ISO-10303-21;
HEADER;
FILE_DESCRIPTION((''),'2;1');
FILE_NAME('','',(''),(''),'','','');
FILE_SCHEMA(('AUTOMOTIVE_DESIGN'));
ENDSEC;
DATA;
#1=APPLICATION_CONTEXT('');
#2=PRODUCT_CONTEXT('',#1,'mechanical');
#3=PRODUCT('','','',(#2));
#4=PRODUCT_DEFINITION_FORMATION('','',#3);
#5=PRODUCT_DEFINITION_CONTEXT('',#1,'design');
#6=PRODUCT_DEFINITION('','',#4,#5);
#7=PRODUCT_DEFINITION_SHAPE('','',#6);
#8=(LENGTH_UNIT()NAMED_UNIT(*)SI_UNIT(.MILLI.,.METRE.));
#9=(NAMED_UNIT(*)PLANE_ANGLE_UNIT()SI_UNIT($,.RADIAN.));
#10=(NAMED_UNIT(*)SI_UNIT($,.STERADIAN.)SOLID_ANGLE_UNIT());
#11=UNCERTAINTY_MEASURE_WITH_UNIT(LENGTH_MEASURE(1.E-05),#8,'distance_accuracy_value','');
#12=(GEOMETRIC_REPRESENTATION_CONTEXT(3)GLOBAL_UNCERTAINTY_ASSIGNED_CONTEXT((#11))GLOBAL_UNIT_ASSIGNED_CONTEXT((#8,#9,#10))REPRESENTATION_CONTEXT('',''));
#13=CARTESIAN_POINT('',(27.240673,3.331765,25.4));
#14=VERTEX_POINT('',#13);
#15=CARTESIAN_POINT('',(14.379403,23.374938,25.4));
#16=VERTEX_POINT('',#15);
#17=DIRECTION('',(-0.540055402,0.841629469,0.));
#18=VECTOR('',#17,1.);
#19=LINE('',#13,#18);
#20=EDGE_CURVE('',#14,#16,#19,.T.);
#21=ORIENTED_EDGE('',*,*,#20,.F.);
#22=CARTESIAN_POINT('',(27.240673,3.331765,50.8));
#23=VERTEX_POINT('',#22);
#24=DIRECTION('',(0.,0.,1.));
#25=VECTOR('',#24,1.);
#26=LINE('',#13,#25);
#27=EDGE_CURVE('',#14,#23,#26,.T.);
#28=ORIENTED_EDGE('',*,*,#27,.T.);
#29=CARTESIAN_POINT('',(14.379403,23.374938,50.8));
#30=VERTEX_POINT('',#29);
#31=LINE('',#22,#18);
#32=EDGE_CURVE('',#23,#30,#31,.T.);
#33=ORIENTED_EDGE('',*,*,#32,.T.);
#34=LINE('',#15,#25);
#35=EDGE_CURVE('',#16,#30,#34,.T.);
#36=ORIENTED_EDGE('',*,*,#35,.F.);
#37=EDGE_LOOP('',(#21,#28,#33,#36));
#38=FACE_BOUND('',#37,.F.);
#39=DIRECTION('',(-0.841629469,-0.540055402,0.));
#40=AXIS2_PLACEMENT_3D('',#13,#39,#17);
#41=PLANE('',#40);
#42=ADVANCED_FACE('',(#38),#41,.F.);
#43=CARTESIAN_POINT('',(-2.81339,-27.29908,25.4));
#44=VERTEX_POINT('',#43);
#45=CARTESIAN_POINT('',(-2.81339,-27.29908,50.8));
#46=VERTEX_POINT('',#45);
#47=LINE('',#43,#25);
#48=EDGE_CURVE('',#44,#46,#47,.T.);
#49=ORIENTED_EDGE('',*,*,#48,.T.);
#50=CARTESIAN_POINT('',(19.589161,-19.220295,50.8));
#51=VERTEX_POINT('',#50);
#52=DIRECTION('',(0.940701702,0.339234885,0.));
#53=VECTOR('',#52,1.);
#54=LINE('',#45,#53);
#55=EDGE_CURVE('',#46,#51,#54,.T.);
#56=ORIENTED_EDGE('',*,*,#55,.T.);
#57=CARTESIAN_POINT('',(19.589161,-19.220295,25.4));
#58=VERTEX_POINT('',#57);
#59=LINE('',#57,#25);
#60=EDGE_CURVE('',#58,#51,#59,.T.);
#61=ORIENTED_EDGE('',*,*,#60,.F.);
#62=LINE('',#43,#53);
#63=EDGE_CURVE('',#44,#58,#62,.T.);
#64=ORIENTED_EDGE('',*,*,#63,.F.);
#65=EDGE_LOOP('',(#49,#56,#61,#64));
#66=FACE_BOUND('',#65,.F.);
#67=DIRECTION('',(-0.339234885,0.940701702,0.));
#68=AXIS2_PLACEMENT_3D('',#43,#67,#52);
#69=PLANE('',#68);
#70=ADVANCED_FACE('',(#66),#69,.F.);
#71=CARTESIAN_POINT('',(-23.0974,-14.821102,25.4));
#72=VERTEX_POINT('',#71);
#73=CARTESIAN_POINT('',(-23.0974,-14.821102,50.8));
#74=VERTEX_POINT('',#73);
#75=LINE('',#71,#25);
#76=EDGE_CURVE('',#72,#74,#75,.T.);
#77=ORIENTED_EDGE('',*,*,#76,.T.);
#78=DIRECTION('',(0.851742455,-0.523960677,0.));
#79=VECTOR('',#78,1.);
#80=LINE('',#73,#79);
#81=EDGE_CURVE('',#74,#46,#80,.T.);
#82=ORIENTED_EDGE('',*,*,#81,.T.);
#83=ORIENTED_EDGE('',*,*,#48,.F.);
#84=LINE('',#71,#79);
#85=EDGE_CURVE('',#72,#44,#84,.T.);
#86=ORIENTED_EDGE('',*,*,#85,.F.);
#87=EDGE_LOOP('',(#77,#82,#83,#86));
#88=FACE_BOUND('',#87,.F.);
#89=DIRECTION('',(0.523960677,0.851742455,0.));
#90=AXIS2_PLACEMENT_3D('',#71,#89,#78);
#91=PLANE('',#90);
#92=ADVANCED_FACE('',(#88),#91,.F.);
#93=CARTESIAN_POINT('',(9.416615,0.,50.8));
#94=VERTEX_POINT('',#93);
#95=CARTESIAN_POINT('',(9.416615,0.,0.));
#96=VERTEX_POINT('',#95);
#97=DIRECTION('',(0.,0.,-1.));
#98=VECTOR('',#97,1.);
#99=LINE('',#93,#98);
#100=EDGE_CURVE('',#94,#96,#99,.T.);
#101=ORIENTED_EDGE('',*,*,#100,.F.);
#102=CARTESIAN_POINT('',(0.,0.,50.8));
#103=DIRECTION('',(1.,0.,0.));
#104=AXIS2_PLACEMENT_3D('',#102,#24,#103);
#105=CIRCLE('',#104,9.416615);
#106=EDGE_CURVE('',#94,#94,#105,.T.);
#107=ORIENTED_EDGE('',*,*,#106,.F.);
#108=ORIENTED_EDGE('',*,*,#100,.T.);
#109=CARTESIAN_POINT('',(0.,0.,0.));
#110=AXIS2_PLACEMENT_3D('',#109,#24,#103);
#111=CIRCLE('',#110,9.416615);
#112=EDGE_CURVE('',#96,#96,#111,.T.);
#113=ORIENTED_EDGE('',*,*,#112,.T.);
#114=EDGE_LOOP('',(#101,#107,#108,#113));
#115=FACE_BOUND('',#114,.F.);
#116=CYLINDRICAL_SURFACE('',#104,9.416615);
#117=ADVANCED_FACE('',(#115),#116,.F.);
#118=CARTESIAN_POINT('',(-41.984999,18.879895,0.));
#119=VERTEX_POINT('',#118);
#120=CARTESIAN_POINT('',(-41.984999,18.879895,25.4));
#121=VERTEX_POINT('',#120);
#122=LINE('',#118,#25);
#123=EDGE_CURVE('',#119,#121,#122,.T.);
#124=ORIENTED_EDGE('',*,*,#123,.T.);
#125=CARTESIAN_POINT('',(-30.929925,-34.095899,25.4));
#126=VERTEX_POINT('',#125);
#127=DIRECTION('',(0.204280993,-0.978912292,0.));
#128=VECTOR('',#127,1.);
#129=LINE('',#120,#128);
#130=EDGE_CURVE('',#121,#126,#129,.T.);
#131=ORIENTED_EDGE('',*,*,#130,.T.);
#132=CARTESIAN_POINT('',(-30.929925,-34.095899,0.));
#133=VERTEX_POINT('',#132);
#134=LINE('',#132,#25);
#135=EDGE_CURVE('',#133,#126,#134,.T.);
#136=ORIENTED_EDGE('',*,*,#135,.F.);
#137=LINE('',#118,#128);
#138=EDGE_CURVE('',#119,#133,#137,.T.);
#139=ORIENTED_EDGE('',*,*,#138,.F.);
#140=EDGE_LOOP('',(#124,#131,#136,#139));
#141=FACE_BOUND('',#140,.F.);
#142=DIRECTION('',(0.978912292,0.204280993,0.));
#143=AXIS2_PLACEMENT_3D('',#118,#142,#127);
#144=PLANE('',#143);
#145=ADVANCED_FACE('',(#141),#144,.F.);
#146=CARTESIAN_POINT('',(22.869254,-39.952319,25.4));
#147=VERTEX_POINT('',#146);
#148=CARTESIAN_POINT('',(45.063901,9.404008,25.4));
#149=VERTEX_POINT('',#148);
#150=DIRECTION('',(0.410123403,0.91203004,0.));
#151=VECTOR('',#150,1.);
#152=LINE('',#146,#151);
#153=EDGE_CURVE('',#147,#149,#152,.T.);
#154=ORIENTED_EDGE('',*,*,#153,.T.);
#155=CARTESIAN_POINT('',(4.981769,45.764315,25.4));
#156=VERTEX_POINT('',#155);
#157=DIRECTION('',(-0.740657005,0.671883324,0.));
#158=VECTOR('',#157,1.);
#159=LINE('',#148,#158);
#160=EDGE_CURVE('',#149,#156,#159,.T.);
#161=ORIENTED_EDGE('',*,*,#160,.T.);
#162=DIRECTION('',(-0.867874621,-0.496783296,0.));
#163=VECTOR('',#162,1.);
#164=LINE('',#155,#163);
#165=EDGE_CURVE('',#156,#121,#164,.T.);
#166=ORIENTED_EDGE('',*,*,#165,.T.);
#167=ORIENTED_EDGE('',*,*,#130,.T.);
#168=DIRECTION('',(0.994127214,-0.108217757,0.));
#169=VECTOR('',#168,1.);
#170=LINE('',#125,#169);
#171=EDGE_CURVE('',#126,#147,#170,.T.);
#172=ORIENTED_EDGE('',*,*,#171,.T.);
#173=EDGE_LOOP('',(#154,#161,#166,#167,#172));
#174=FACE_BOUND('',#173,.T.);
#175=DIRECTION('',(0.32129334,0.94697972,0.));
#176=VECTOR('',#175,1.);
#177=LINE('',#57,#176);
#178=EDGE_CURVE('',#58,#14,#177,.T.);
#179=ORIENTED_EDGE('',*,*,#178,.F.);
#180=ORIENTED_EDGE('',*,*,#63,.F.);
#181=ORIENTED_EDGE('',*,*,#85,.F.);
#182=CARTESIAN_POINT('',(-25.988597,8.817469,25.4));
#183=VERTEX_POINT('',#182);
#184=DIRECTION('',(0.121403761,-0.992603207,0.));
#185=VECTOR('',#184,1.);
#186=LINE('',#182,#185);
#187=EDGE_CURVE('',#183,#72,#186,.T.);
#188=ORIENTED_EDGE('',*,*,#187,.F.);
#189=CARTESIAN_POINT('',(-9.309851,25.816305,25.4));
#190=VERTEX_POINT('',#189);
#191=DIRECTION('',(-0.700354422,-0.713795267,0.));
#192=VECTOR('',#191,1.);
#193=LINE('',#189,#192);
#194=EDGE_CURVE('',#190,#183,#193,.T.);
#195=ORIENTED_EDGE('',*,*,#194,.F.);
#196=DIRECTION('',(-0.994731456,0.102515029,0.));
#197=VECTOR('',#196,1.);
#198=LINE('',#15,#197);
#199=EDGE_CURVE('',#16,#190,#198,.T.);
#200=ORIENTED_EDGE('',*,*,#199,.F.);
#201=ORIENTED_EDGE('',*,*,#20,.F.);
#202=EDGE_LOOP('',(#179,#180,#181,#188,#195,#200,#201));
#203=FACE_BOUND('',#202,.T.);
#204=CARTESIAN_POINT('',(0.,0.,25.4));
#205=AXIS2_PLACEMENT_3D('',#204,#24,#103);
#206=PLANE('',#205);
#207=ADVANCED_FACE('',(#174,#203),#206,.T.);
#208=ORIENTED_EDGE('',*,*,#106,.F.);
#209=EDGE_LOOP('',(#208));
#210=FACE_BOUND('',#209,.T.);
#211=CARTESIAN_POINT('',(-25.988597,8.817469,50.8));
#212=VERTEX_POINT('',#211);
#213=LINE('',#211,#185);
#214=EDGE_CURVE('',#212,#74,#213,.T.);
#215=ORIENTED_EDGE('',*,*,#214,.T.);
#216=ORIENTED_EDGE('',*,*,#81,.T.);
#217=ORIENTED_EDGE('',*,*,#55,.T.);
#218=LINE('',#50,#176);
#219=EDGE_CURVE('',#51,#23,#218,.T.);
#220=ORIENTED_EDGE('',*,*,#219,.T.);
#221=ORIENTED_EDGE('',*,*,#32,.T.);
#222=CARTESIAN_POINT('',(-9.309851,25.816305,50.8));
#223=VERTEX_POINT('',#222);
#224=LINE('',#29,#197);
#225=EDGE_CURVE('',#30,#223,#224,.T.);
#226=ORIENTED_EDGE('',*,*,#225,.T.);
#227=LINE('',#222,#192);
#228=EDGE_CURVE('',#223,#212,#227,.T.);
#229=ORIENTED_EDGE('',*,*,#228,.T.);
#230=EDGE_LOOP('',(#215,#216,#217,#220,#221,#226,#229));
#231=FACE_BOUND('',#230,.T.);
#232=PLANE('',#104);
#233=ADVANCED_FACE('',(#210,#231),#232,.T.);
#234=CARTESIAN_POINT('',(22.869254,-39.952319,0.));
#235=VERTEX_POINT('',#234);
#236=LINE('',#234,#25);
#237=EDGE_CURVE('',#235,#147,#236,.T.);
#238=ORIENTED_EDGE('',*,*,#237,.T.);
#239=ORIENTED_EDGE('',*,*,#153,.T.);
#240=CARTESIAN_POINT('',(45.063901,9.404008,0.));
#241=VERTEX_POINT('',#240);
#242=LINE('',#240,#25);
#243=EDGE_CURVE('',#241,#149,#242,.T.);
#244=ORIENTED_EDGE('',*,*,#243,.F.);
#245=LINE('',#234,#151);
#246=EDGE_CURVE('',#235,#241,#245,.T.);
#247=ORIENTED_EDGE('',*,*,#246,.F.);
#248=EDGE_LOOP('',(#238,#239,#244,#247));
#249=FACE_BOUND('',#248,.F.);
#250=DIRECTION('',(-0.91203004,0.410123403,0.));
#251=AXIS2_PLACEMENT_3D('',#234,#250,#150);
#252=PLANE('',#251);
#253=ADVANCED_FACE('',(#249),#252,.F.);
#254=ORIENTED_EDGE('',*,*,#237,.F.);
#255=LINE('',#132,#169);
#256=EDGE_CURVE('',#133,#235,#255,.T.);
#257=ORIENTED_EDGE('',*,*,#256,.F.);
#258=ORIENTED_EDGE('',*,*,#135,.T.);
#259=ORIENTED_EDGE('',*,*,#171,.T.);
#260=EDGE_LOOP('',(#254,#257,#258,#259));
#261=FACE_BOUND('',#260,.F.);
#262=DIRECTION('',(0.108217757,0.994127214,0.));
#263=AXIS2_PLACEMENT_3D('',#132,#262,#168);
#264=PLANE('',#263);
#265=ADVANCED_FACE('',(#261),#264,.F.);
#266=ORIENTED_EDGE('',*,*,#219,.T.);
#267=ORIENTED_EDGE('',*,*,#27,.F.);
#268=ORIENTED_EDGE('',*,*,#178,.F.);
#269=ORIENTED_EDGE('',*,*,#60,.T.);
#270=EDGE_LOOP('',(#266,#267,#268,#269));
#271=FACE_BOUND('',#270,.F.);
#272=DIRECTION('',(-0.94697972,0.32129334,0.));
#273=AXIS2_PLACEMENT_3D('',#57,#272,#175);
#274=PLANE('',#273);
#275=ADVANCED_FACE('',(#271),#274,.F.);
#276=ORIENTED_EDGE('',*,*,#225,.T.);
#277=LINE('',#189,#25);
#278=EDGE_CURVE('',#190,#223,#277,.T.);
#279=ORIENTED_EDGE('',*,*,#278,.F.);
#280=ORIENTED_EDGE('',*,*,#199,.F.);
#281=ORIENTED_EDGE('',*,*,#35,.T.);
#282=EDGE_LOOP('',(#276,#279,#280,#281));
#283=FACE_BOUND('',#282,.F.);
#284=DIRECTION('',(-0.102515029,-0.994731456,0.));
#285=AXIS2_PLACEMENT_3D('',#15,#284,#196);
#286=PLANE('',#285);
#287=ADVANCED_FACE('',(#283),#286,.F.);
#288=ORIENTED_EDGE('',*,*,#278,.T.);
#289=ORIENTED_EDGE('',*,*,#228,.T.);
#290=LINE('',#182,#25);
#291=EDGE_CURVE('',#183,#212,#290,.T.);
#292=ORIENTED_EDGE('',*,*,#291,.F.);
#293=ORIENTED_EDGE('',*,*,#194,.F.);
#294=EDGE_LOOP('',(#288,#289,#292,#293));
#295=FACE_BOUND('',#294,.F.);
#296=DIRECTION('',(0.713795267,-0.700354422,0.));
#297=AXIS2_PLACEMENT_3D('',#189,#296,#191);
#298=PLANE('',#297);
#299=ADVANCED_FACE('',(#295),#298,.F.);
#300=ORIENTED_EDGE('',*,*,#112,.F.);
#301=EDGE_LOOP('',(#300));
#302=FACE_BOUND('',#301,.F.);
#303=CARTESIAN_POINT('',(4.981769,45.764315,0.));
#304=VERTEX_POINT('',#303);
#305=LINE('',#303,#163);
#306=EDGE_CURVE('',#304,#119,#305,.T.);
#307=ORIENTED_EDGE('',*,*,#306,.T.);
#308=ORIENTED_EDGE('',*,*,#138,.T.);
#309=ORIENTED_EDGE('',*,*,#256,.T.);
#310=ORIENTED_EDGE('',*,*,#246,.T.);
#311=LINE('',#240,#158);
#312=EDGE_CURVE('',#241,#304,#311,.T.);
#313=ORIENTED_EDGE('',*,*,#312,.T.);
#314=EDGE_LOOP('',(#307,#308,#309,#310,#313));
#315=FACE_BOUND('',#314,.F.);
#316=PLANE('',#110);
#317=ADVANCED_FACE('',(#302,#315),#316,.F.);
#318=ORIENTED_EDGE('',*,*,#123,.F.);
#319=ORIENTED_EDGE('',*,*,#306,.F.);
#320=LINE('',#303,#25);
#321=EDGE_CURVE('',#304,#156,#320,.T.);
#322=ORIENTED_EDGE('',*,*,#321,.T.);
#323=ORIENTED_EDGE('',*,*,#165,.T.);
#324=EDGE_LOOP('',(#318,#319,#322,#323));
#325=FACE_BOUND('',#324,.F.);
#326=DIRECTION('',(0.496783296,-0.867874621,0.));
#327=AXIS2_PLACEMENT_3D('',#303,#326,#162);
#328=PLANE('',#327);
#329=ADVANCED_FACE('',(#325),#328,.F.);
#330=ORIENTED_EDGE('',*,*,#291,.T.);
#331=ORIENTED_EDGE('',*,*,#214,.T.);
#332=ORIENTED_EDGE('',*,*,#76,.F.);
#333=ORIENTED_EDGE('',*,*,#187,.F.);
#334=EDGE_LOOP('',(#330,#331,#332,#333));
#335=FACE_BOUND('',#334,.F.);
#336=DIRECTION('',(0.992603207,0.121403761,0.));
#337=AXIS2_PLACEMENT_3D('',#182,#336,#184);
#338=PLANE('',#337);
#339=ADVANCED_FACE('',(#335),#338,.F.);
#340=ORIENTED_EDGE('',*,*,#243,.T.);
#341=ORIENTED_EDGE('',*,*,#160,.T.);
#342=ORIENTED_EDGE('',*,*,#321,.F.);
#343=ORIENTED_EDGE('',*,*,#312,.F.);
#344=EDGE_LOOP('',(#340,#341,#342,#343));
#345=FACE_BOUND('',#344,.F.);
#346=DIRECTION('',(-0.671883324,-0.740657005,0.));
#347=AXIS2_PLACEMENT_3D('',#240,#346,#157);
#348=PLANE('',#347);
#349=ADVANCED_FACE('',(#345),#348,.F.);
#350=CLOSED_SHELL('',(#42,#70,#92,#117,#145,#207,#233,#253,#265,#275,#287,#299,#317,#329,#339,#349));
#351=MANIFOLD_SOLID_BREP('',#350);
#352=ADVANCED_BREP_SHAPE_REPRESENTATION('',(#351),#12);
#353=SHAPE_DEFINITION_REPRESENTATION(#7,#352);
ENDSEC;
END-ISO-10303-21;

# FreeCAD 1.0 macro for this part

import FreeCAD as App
import Part
import Sketcher
Q = App.Units.Quantity

doc = App.newDocument("Part")
body = doc.addObject("PartDesign::Body", "Body")

# Sketch on XY plane
sketch1 = body.newObject("Sketcher::SketchObject", "Sketch")
sketch1.AttachmentSupport = (doc.getObject("XY_Plane"), [""])
sketch1.MapMode = "FlatFace"
sketch1.addGeometry([
    Part.LineSegment(App.Vector(5, 46, 0), App.Vector(-42, 19, 0)),  # 0
    Part.LineSegment(App.Vector(-42, 19, 0), App.Vector(-31, -34, 0)),  # 1
    Part.LineSegment(App.Vector(-31, -34, 0), App.Vector(23, -40, 0)),  # 2
    Part.LineSegment(App.Vector(23, -40, 0), App.Vector(45, 9, 0)),  # 3
    Part.LineSegment(App.Vector(45, 9, 0), App.Vector(5, 46, 0)),  # 4
], False)
sketch1.addConstraint([
    Sketcher.Constraint("Coincident", 0, 2, 1, 1),
    Sketcher.Constraint("Coincident", 1, 2, 2, 1),
    Sketcher.Constraint("Coincident", 2, 2, 3, 1),
    Sketcher.Constraint("Coincident", 3, 2, 4, 1),
    Sketcher.Constraint("Coincident", 4, 2, 0, 1),
    Sketcher.Constraint("Equal", 0, 1),
    Sketcher.Constraint("Equal", 1, 2),
    Sketcher.Constraint("Equal", 2, 3),
    Sketcher.Constraint("Equal", 3, 4),
    Sketcher.Constraint("DistanceX", 0, 2, -1, 1, 41.984999),
    Sketcher.Constraint("DistanceY", 1, 2, -1, 1, 34.095899),
    Sketcher.Constraint("DistanceX", -1, 1, 3, 2, 45.063901),
    Sketcher.Constraint("DistanceY", 2, 2, -1, 1, 39.952319),
    Sketcher.Constraint("DistanceX", -1, 1, 4, 2, 4.981769),
    Sketcher.Constraint("DistanceX", 1, 2, 2, 2, 53.799179),
])
pad1 = body.newObject("PartDesign::Pad", "Pad")
pad1.Profile = sketch1
pad1.Length = Q("1 in")

# Sketch on XY plane
sketch2 = body.newObject("Sketcher::SketchObject", "Sketch001")
sketch2.AttachmentSupport = (doc.getObject("XY_Plane"), [""])
sketch2.MapMode = "FlatFace"
sketch2.AttachmentOffset = App.Placement(App.Vector(0, 0, 1 * 25.4), App.Rotation())
sketch2.addGeometry([
    Part.LineSegment(App.Vector(-9, 26, 0), App.Vector(-26, 9, 0)),  # 0
    Part.LineSegment(App.Vector(-26, 9, 0), App.Vector(-23, -15, 0)),  # 1
    Part.LineSegment(App.Vector(-23, -15, 0), App.Vector(-3, -27, 0)),  # 2
    Part.LineSegment(App.Vector(-3, -27, 0), App.Vector(20, -19, 0)),  # 3
    Part.LineSegment(App.Vector(20, -19, 0), App.Vector(27, 3, 0)),  # 4
    Part.LineSegment(App.Vector(27, 3, 0), App.Vector(14, 23, 0)),  # 5
    Part.LineSegment(App.Vector(14, 23, 0), App.Vector(-9, 26, 0)),  # 6
], False)
sketch2.addConstraint([
    Sketcher.Constraint("Coincident", 0, 2, 1, 1),
    Sketcher.Constraint("Coincident", 1, 2, 2, 1),
    Sketcher.Constraint("Coincident", 2, 2, 3, 1),
    Sketcher.Constraint("Coincident", 3, 2, 4, 1),
    Sketcher.Constraint("Coincident", 4, 2, 5, 1),
    Sketcher.Constraint("Coincident", 5, 2, 6, 1),
    Sketcher.Constraint("Coincident", 6, 2, 0, 1),
    Sketcher.Constraint("Equal", 0, 1),
    Sketcher.Constraint("Equal", 1, 2),
    Sketcher.Constraint("Equal", 2, 3),
    Sketcher.Constraint("Equal", 3, 4),
    Sketcher.Constraint("Equal", 4, 5),
    Sketcher.Constraint("Equal", 5, 6),
    Sketcher.Constraint("DistanceX", 0, 2, 3, 2, Q("1.7943999 in")),
    Sketcher.Constraint("DistanceX", 1, 2, -1, 1, 23.0974),
    Sketcher.Constraint("DistanceX", 0, 2, 5, 2, 40.368),
    Sketcher.Constraint("DistanceY", -1, 1, 0, 2, 8.817469),
    Sketcher.Constraint("DistanceX", 2, 2, -1, 1, 2.81339),
    Sketcher.Constraint("DistanceY", 2, 2, -1, 1, 27.29908),
    Sketcher.Constraint("DistanceX", -1, 1, 3, 2, 19.589161),
    Sketcher.Constraint("DistanceY", -1, 1, 5, 2, 23.374938),
])
pad2 = body.newObject("PartDesign::Pad", "Pad001")
pad2.Profile = sketch2
pad2.Length = Q("1 in")

# Sketch on XY plane
sketch3 = body.newObject("Sketcher::SketchObject", "Sketch002")
sketch3.AttachmentSupport = (doc.getObject("XY_Plane"), [""])
sketch3.MapMode = "FlatFace"
sketch3.AttachmentOffset = App.Placement(App.Vector(0, 0, 2 * 25.4), App.Rotation())
sketch3.addGeometry(Part.Circle(App.Vector(0, 0, 0), App.Vector(0, 0, 1), 9), False)
sketch3.addConstraint([
    Sketcher.Constraint("Coincident", 0, 3, -1, 1),
    Sketcher.Constraint("Diameter", 0, 18.83323),
])
pocket1 = body.newObject("PartDesign::Pocket", "Pocket")
pocket1.Profile = sketch3
pocket1.Length = Q("3.73 in")

doc.recompute()
